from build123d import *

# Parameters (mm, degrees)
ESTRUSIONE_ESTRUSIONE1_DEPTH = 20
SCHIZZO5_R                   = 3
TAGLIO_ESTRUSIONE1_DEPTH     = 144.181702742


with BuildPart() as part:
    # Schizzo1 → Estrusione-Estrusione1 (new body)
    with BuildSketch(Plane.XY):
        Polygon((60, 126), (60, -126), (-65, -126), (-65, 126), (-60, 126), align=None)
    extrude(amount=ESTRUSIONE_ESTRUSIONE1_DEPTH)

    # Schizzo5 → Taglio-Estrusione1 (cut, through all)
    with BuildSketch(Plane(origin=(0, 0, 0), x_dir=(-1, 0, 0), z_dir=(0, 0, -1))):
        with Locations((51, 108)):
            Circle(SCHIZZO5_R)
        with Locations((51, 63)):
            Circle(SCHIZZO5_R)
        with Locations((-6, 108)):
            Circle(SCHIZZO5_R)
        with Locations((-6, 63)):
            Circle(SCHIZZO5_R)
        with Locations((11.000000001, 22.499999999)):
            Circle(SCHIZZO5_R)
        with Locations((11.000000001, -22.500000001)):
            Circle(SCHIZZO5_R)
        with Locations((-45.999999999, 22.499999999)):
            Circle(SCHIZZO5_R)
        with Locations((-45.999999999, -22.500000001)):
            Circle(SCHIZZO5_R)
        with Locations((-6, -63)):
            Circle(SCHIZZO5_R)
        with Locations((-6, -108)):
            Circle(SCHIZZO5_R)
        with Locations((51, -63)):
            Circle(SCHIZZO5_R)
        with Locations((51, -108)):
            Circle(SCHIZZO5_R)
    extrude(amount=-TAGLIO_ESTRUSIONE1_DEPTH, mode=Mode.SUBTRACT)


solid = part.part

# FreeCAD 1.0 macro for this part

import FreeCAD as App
import Part
import Sketcher
from FreeCAD import Vector

doc = App.newDocument("Part")
body = doc.addObject("PartDesign::Body", "Body")

# Sketch on XY plane
sketch1 = body.newObject("Sketcher::SketchObject", "Sketch")
sketch1.AttachmentSupport = (doc.getObject("XY_Plane"), [""])
sketch1.MapMode = "FlatFace"
sketch1.addGeometry([
    Part.LineSegment(Vector(60, -126, 0), Vector(60, 126, 0)),
    Part.LineSegment(Vector(60, 126, 0), Vector(-65, 126, 0)),
    Part.LineSegment(Vector(-65, 126, 0), Vector(-65, -126, 0)),
    Part.LineSegment(Vector(-65, -126, 0), Vector(60, -126, 0)),
], False)
sketch1.addConstraint([
    Sketcher.Constraint("Coincident", 0, 2, 1, 1),
    Sketcher.Constraint("Coincident", 1, 2, 2, 1),
    Sketcher.Constraint("Coincident", 2, 2, 3, 1),
    Sketcher.Constraint("Coincident", 3, 2, 0, 1),
    Sketcher.Constraint("Vertical", 0),
    Sketcher.Constraint("Horizontal", 1),
    Sketcher.Constraint("Vertical", 2),
    Sketcher.Constraint("Horizontal", 3),
    Sketcher.Constraint("DistanceX", 1, 2, 1, 1, 125.0),
    Sketcher.Constraint("DistanceY", 0, 1, 0, 2, 252.0),
    Sketcher.Constraint("DistanceX", -1, 1, 0, 2, 60.0),
    Sketcher.Constraint("DistanceY", -1, 1, 0, 2, 126.0),
])
pad1 = body.newObject("PartDesign::Pad", "Pad")
pad1.Profile = sketch1
pad1.Length = 20

# Sketch on XY plane
sketch2 = body.newObject("Sketcher::SketchObject", "Sketch001")
sketch2.AttachmentSupport = (doc.getObject("XY_Plane"), [""])
sketch2.MapMode = "FlatFace"
sketch2.addGeometry([
    Part.Circle(Vector(-51, 108, 0), Vector(0, 0, 1), 3),  # 0
    Part.Circle(Vector(-51, 63, 0), Vector(0, 0, 1), 3),  # 1
    Part.Circle(Vector(6, 108, 0), Vector(0, 0, 1), 3),  # 2
    Part.Circle(Vector(6, 63, 0), Vector(0, 0, 1), 3),  # 3
    Part.Circle(Vector(-11, 22.5, 0), Vector(0, 0, 1), 3),  # 4
    Part.Circle(Vector(-11, -22.5, 0), Vector(0, 0, 1), 3),  # 5
    Part.Circle(Vector(46, 22.5, 0), Vector(0, 0, 1), 3),  # 6
    Part.Circle(Vector(46, -22.5, 0), Vector(0, 0, 1), 3),  # 7
    Part.Circle(Vector(6, -63, 0), Vector(0, 0, 1), 3),  # 8
    Part.Circle(Vector(6, -108, 0), Vector(0, 0, 1), 3),  # 9
    Part.Circle(Vector(-51, -63, 0), Vector(0, 0, 1), 3),  # 10
    Part.Circle(Vector(-51, -108, 0), Vector(0, 0, 1), 3),  # 11
], False)
sketch2.addConstraint([
    Sketcher.Constraint("Equal", 0, 1),
    Sketcher.Constraint("Equal", 1, 2),
    Sketcher.Constraint("Equal", 2, 3),
    Sketcher.Constraint("Equal", 3, 4),
    Sketcher.Constraint("Equal", 4, 5),
    Sketcher.Constraint("Equal", 5, 6),
    Sketcher.Constraint("Equal", 6, 7),
    Sketcher.Constraint("Equal", 7, 8),
    Sketcher.Constraint("Equal", 8, 9),
    Sketcher.Constraint("Equal", 9, 10),
    Sketcher.Constraint("Equal", 10, 11),
    Sketcher.Constraint("Symmetric", 4, 3, 5, 3, -1),
    Sketcher.Constraint("Symmetric", 6, 3, 7, 3, -1),
    Sketcher.Constraint("Symmetric", 3, 3, 8, 3, -1),
    Sketcher.Constraint("Symmetric", 2, 3, 9, 3, -1),
    Sketcher.Constraint("Symmetric", 1, 3, 10, 3, -1),
    Sketcher.Constraint("Symmetric", 0, 3, 11, 3, -1),
    Sketcher.Constraint("Horizontal", 0, 3, 2, 3),
    Sketcher.Constraint("Horizontal", 1, 3, 3, 3),
    Sketcher.Constraint("Horizontal", 4, 3, 6, 3),
    Sketcher.Constraint("Vertical", 0, 3, 1, 3),
    Sketcher.Constraint("Vertical", 2, 3, 3, 3),
    Sketcher.Constraint("Diameter", 0, 6.0),
    Sketcher.Constraint("DistanceX", 0, 3, -1, 1, 51.0),
    Sketcher.Constraint("DistanceY", -1, 1, 0, 3, 108.0),
    Sketcher.Constraint("DistanceY", -1, 1, 1, 3, 63.0),
    Sketcher.Constraint("DistanceX", -1, 1, 2, 3, 6.0),
    Sketcher.Constraint("DistanceX", 4, 3, -1, 1, 11.0),
    Sketcher.Constraint("DistanceX", -1, 1, 6, 3, 46.0),
    Sketcher.Constraint("DistanceY", 5, 3, 4, 3, 45.0),
])
pocket1 = body.newObject("PartDesign::Pocket", "Pocket")
pocket1.Profile = sketch2
pocket1.Type = "ThroughAll"
pocket1.Reversed = True

doc.recompute()
